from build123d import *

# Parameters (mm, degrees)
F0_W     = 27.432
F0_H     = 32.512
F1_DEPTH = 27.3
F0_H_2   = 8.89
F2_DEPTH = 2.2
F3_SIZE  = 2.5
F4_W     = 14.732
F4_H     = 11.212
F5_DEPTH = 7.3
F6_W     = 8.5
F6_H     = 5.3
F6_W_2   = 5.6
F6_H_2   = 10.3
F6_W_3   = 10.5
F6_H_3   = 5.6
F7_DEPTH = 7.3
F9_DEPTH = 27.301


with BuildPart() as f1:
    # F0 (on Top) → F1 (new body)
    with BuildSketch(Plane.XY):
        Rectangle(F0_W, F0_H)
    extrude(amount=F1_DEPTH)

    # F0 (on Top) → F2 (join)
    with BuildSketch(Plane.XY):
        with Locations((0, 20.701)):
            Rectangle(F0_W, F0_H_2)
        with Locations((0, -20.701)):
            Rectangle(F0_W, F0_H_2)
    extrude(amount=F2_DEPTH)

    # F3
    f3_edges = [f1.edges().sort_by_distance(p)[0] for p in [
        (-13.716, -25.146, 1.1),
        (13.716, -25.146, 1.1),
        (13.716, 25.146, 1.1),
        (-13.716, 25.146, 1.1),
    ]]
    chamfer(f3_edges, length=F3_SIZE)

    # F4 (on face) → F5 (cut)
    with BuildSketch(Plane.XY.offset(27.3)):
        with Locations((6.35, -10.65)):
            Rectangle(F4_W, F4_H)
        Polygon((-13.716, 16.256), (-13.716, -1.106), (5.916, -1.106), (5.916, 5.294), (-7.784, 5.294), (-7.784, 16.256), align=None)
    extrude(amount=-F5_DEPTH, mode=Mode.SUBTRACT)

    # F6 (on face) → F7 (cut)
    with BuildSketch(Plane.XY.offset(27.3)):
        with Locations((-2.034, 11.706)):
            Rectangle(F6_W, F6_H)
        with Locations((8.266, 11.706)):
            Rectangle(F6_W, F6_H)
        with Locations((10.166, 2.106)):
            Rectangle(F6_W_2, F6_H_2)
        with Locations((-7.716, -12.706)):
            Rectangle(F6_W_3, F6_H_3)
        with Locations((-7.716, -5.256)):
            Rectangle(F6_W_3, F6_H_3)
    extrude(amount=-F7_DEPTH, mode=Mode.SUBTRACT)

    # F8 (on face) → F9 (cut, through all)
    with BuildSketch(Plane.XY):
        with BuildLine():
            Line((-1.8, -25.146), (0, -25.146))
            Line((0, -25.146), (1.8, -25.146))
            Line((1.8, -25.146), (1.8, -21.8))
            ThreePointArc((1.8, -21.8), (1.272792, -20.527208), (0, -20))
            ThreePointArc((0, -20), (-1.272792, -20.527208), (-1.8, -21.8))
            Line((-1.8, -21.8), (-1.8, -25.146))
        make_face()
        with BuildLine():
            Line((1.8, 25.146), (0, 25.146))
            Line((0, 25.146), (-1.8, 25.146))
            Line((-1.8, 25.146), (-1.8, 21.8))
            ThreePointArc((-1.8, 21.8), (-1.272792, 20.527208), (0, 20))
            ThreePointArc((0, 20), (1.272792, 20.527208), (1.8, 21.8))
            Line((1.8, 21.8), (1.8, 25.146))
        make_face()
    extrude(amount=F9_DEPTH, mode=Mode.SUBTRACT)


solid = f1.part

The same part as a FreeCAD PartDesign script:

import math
import FreeCAD as App
import Part
import Sketcher

V = App.Vector


def edges_at(feature, points):
    """Names of the edges that pass closest to the given points."""
    edges = feature.Shape.Edges
    near = lambda p: min(range(len(edges)), key=lambda i: edges[i].distToShape(Part.Vertex(*p))[0])
    return sorted({f"Edge{near(p) + 1}" for p in points})

doc = App.newDocument("Part")
body = doc.addObject("PartDesign::Body", "Body")

sketch1 = doc.addObject("Sketcher::SketchObject", "Sketch")
body.addObject(sketch1)
sketch1.AttachmentSupport = (doc.XY_Plane, [""])
sketch1.MapMode = "FlatFace"
sketch1.addGeometry(Part.LineSegment(V(-14, 16, 0), V(-14, -16, 0)), False)
sketch1.addGeometry(Part.LineSegment(V(-14, -16, 0), V(14, -16, 0)), False)
sketch1.addGeometry(Part.LineSegment(V(14, -16, 0), V(14, 16, 0)), False)
sketch1.addGeometry(Part.LineSegment(V(14, 16, 0), V(-14, 16, 0)), False)
sketch1.addConstraint(Sketcher.Constraint("Coincident", 0, 2, 1, 1))
sketch1.addConstraint(Sketcher.Constraint("Coincident", 1, 2, 2, 1))
sketch1.addConstraint(Sketcher.Constraint("Coincident", 2, 2, 3, 1))
sketch1.addConstraint(Sketcher.Constraint("Coincident", 3, 2, 0, 1))
sketch1.addConstraint(Sketcher.Constraint("Vertical", 0))
sketch1.addConstraint(Sketcher.Constraint("Horizontal", 1))
sketch1.addConstraint(Sketcher.Constraint("Vertical", 2))
sketch1.addConstraint(Sketcher.Constraint("Horizontal", 3))
sketch1.addConstraint(Sketcher.Constraint("Symmetric", 0, 2, 2, 2, -1, 1))
sketch1.addConstraint(Sketcher.Constraint("DistanceX", 1, 1, 1, 2, 27.432))
sketch1.addConstraint(Sketcher.Constraint("DistanceY", 0, 2, 0, 1, 32.512))
pad1 = doc.addObject("PartDesign::Pad", "Pad")
body.addObject(pad1)
pad1.Profile = sketch1
pad1.Length = 27.3

sketch2 = doc.addObject("Sketcher::SketchObject", "Sketch001")
body.addObject(sketch2)
sketch2.AttachmentSupport = (doc.XY_Plane, [""])
sketch2.MapMode = "FlatFace"
sketch2.addGeometry(Part.LineSegment(V(-14, 25, 0), V(-14, 16, 0)), False)
sketch2.addGeometry(Part.LineSegment(V(-14, 16, 0), V(14, 16, 0)), False)
sketch2.addGeometry(Part.LineSegment(V(14, 16, 0), V(14, 25, 0)), False)
sketch2.addGeometry(Part.LineSegment(V(14, 25, 0), V(-14, 25, 0)), False)
sketch2.addGeometry(Part.LineSegment(V(-14, -16, 0), V(-14, -25, 0)), False)
sketch2.addGeometry(Part.LineSegment(V(-14, -25, 0), V(14, -25, 0)), False)
sketch2.addGeometry(Part.LineSegment(V(14, -25, 0), V(14, -16, 0)), False)
sketch2.addGeometry(Part.LineSegment(V(14, -16, 0), V(-14, -16, 0)), False)
sketch2.addConstraint(Sketcher.Constraint("Coincident", 0, 2, 1, 1))
sketch2.addConstraint(Sketcher.Constraint("Coincident", 1, 2, 2, 1))
sketch2.addConstraint(Sketcher.Constraint("Coincident", 2, 2, 3, 1))
sketch2.addConstraint(Sketcher.Constraint("Coincident", 3, 2, 0, 1))
sketch2.addConstraint(Sketcher.Constraint("Coincident", 4, 2, 5, 1))
sketch2.addConstraint(Sketcher.Constraint("Coincident", 5, 2, 6, 1))
sketch2.addConstraint(Sketcher.Constraint("Coincident", 6, 2, 7, 1))
sketch2.addConstraint(Sketcher.Constraint("Coincident", 7, 2, 4, 1))
sketch2.addConstraint(Sketcher.Constraint("Vertical", 0))
sketch2.addConstraint(Sketcher.Constraint("Horizontal", 1))
sketch2.addConstraint(Sketcher.Constraint("Vertical", 2))
sketch2.addConstraint(Sketcher.Constraint("Horizontal", 3))
sketch2.addConstraint(Sketcher.Constraint("Vertical", 4))
sketch2.addConstraint(Sketcher.Constraint("Horizontal", 5))
sketch2.addConstraint(Sketcher.Constraint("Vertical", 6))
sketch2.addConstraint(Sketcher.Constraint("Horizontal", 7))
sketch2.addConstraint(Sketcher.Constraint("Symmetric", 2, 2, 4, 2, -1, 1))
sketch2.addConstraint(Sketcher.Constraint("Symmetric", 0, 2, 6, 2, -1, 1))
sketch2.addConstraint(Sketcher.Constraint("Vertical", 3, 2, 4, 2))
sketch2.addConstraint(Sketcher.Constraint("DistanceY", 0, 2, 0, 1, 8.89))
sketch2.addConstraint(Sketcher.Constraint("DistanceX", 1, 1, 1, 2, 27.432))
sketch2.addConstraint(Sketcher.Constraint("DistanceY", -1, 1, 0, 2, 16.256))
pad2 = doc.addObject("PartDesign::Pad", "Pad001")
body.addObject(pad2)
pad2.Profile = sketch2
pad2.Length = 2.2
doc.recompute()

chamfer = doc.addObject("PartDesign::Chamfer", "Chamfer")
body.addObject(chamfer)
chamfer.Base = (pad2, edges_at(pad2, [
    (-13.716, -25.146, 1.1),
    (13.716, -25.146, 1.1),
    (13.716, 25.146, 1.1),
    (-13.716, 25.146, 1.1),
]))
chamfer.Size = 2.5

sketch3 = doc.addObject("Sketcher::SketchObject", "Sketch002")
body.addObject(sketch3)
sketch3.AttachmentSupport = (doc.XY_Plane, [""])
sketch3.MapMode = "FlatFace"
sketch3.AttachmentOffset = App.Placement(V(0, 0, 27.3), App.Rotation())
sketch3.addGeometry(Part.LineSegment(V(-1, -5, 0), V(-1, -16, 0)), False)
sketch3.addGeometry(Part.LineSegment(V(-1, -16, 0), V(14, -16, 0)), False)
sketch3.addGeometry(Part.LineSegment(V(14, -16, 0), V(14, -5, 0)), False)
sketch3.addGeometry(Part.LineSegment(V(14, -5, 0), V(-1, -5, 0)), False)
sketch3.addGeometry(Part.LineSegment(V(-14, 16, 0), V(-14, -1, 0)), False)
sketch3.addGeometry(Part.LineSegment(V(-14, -1, 0), V(6, -1, 0)), False)
sketch3.addGeometry(Part.LineSegment(V(6, -1, 0), V(6, 5, 0)), False)
sketch3.addGeometry(Part.LineSegment(V(6, 5, 0), V(-8, 5, 0)), False)
sketch3.addGeometry(Part.LineSegment(V(-8, 5, 0), V(-8, 16, 0)), False)
sketch3.addGeometry(Part.LineSegment(V(-8, 16, 0), V(-14, 16, 0)), False)
sketch3.addConstraint(Sketcher.Constraint("Coincident", 0, 2, 1, 1))
sketch3.addConstraint(Sketcher.Constraint("Coincident", 1, 2, 2, 1))
sketch3.addConstraint(Sketcher.Constraint("Coincident", 2, 2, 3, 1))
sketch3.addConstraint(Sketcher.Constraint("Coincident", 3, 2, 0, 1))
sketch3.addConstraint(Sketcher.Constraint("Coincident", 4, 2, 5, 1))
sketch3.addConstraint(Sketcher.Constraint("Coincident", 5, 2, 6, 1))
sketch3.addConstraint(Sketcher.Constraint("Coincident", 6, 2, 7, 1))
sketch3.addConstraint(Sketcher.Constraint("Coincident", 7, 2, 8, 1))
sketch3.addConstraint(Sketcher.Constraint("Coincident", 8, 2, 9, 1))
sketch3.addConstraint(Sketcher.Constraint("Coincident", 9, 2, 4, 1))
sketch3.addConstraint(Sketcher.Constraint("Vertical", 0))
sketch3.addConstraint(Sketcher.Constraint("Horizontal", 1))
sketch3.addConstraint(Sketcher.Constraint("Vertical", 2))
sketch3.addConstraint(Sketcher.Constraint("Horizontal", 3))
sketch3.addConstraint(Sketcher.Constraint("Vertical", 4))
sketch3.addConstraint(Sketcher.Constraint("Horizontal", 5))
sketch3.addConstraint(Sketcher.Constraint("Vertical", 6))
sketch3.addConstraint(Sketcher.Constraint("Horizontal", 7))
sketch3.addConstraint(Sketcher.Constraint("Vertical", 8))
sketch3.addConstraint(Sketcher.Constraint("Horizontal", 9))
sketch3.addConstraint(Sketcher.Constraint("Symmetric", 1, 2, 9, 2, -1, 1))
sketch3.addConstraint(Sketcher.Constraint("DistanceX", 7, 2, 7, 1, 13.7))
sketch3.addConstraint(Sketcher.Constraint("DistanceY", 6, 1, 6, 2, 6.4))
sketch3.addConstraint(Sketcher.Constraint("DistanceX", 4, 2, 3, 2, 12.7))
sketch3.addConstraint(Sketcher.Constraint("DistanceX", 5, 2, 2, 2, 7.8))
sketch3.addConstraint(Sketcher.Constraint("DistanceY", 3, 2, 8, 2, 21.3))
sketch3.addConstraint(Sketcher.Constraint("DistanceX", 1, 1, 1, 2, 14.732))
sketch3.addConstraint(Sketcher.Constraint("DistanceY", 0, 2, 0, 1, 11.212))
sketch3.addConstraint(Sketcher.Constraint("DistanceY", 4, 2, 4, 1, 17.362))
pocket1 = doc.addObject("PartDesign::Pocket", "Pocket")
body.addObject(pocket1)
pocket1.Profile = sketch3
pocket1.Length = 7.3

sketch4 = doc.addObject("Sketcher::SketchObject", "Sketch003")
body.addObject(sketch4)
sketch4.AttachmentSupport = (doc.XY_Plane, [""])
sketch4.MapMode = "FlatFace"
sketch4.AttachmentOffset = App.Placement(V(0, 0, 27.3), App.Rotation())
sketch4.addGeometry(Part.LineSegment(V(-6, 14, 0), V(-6, 9, 0)), False)
sketch4.addGeometry(Part.LineSegment(V(-6, 9, 0), V(2, 9, 0)), False)
sketch4.addGeometry(Part.LineSegment(V(2, 9, 0), V(2, 14, 0)), False)
sketch4.addGeometry(Part.LineSegment(V(2, 14, 0), V(-6, 14, 0)), False)
sketch4.addGeometry(Part.LineSegment(V(4, 14, 0), V(4, 9, 0)), False)
sketch4.addGeometry(Part.LineSegment(V(4, 9, 0), V(13, 9, 0)), False)
sketch4.addGeometry(Part.LineSegment(V(13, 9, 0), V(13, 14, 0)), False)
sketch4.addGeometry(Part.LineSegment(V(13, 14, 0), V(4, 14, 0)), False)
sketch4.addGeometry(Part.LineSegment(V(7, 7, 0), V(7, -3, 0)), False)
sketch4.addGeometry(Part.LineSegment(V(7, -3, 0), V(13, -3, 0)), False)
sketch4.addGeometry(Part.LineSegment(V(13, -3, 0), V(13, 7, 0)), False)
sketch4.addGeometry(Part.LineSegment(V(13, 7, 0), V(7, 7, 0)), False)
sketch4.addGeometry(Part.LineSegment(V(-13, -10, 0), V(-13, -16, 0)), False)
sketch4.addGeometry(Part.LineSegment(V(-13, -16, 0), V(-2, -16, 0)), False)
sketch4.addGeometry(Part.LineSegment(V(-2, -16, 0), V(-2, -10, 0)), False)
sketch4.addGeometry(Part.LineSegment(V(-2, -10, 0), V(-13, -10, 0)), False)
sketch4.addGeometry(Part.LineSegment(V(-13, -2, 0), V(-13, -8, 0)), False)
sketch4.addGeometry(Part.LineSegment(V(-13, -8, 0), V(-2, -8, 0)), False)
sketch4.addGeometry(Part.LineSegment(V(-2, -8, 0), V(-2, -2, 0)), False)
sketch4.addGeometry(Part.LineSegment(V(-2, -2, 0), V(-13, -2, 0)), False)
sketch4.addConstraint(Sketcher.Constraint("Coincident", 0, 2, 1, 1))
sketch4.addConstraint(Sketcher.Constraint("Coincident", 1, 2, 2, 1))
sketch4.addConstraint(Sketcher.Constraint("Coincident", 2, 2, 3, 1))
sketch4.addConstraint(Sketcher.Constraint("Coincident", 3, 2, 0, 1))
sketch4.addConstraint(Sketcher.Constraint("Coincident", 4, 2, 5, 1))
sketch4.addConstraint(Sketcher.Constraint("Coincident", 5, 2, 6, 1))
sketch4.addConstraint(Sketcher.Constraint("Coincident", 6, 2, 7, 1))
sketch4.addConstraint(Sketcher.Constraint("Coincident", 7, 2, 4, 1))
sketch4.addConstraint(Sketcher.Constraint("Coincident", 8, 2, 9, 1))
sketch4.addConstraint(Sketcher.Constraint("Coincident", 9, 2, 10, 1))
sketch4.addConstraint(Sketcher.Constraint("Coincident", 10, 2, 11, 1))
sketch4.addConstraint(Sketcher.Constraint("Coincident", 11, 2, 8, 1))
sketch4.addConstraint(Sketcher.Constraint("Coincident", 12, 2, 13, 1))
sketch4.addConstraint(Sketcher.Constraint("Coincident", 13, 2, 14, 1))
sketch4.addConstraint(Sketcher.Constraint("Coincident", 14, 2, 15, 1))
sketch4.addConstraint(Sketcher.Constraint("Coincident", 15, 2, 12, 1))
sketch4.addConstraint(Sketcher.Constraint("Coincident", 16, 2, 17, 1))
sketch4.addConstraint(Sketcher.Constraint("Coincident", 17, 2, 18, 1))
sketch4.addConstraint(Sketcher.Constraint("Coincident", 18, 2, 19, 1))
sketch4.addConstraint(Sketcher.Constraint("Coincident", 19, 2, 16, 1))
sketch4.addConstraint(Sketcher.Constraint("Vertical", 0))
sketch4.addConstraint(Sketcher.Constraint("Horizontal", 1))
sketch4.addConstraint(Sketcher.Constraint("Vertical", 2))
sketch4.addConstraint(Sketcher.Constraint("Horizontal", 3))
sketch4.addConstraint(Sketcher.Constraint("Vertical", 4))
sketch4.addConstraint(Sketcher.Constraint("Horizontal", 5))
sketch4.addConstraint(Sketcher.Constraint("Vertical", 6))
sketch4.addConstraint(Sketcher.Constraint("Horizontal", 7))
sketch4.addConstraint(Sketcher.Constraint("Vertical", 8))
sketch4.addConstraint(Sketcher.Constraint("Horizontal", 9))
sketch4.addConstraint(Sketcher.Constraint("Vertical", 10))
sketch4.addConstraint(Sketcher.Constraint("Horizontal", 11))
sketch4.addConstraint(Sketcher.Constraint("Vertical", 12))
sketch4.addConstraint(Sketcher.Constraint("Horizontal", 13))
sketch4.addConstraint(Sketcher.Constraint("Vertical", 14))
sketch4.addConstraint(Sketcher.Constraint("Horizontal", 15))
sketch4.addConstraint(Sketcher.Constraint("Vertical", 16))
sketch4.addConstraint(Sketcher.Constraint("Horizontal", 17))
sketch4.addConstraint(Sketcher.Constraint("Vertical", 18))
sketch4.addConstraint(Sketcher.Constraint("Horizontal", 19))
sketch4.addConstraint(Sketcher.Constraint("Horizontal", 1, 2, 4, 2))
sketch4.addConstraint(Sketcher.Constraint("Horizontal", 3, 2, 6, 2))
sketch4.addConstraint(Sketcher.Constraint("Vertical", 15, 2, 16, 2))
sketch4.addConstraint(Sketcher.Constraint("Vertical", 14, 2, 17, 2))
sketch4.addConstraint(Sketcher.Constraint("Equal", 3, 5))
sketch4.addConstraint(Sketcher.Constraint("Equal", 11, 12))
sketch4.addConstraint(Sketcher.Constraint("Equal", 14, 16))
sketch4.addConstraint(Sketcher.Constraint("DistanceX", 1, 1, 1, 2, 8.5))
sketch4.addConstraint(Sketcher.Constraint("DistanceX", 9, 1, 9, 2, 5.6))
sketch4.addConstraint(Sketcher.Constraint("DistanceX", 13, 1, 13, 2, 10.5))
sketch4.addConstraint(Sketcher.Constraint("DistanceY", 0, 2, 0, 1, 5.3))
sketch4.addConstraint(Sketcher.Constraint("DistanceY", 8, 2, 8, 1, 10.3))
sketch4.addConstraint(Sketcher.Constraint("DistanceX", 1, 2, 4, 2, 1.8))
sketch4.addConstraint(Sketcher.Constraint("DistanceY", 8, 2, 4, 2, 12.1))
sketch4.addConstraint(Sketcher.Constraint("DistanceX", 4, 2, 8, 2, 3.35))
sketch4.addConstraint(Sketcher.Constraint("DistanceY", 15, 2, 16, 2, 1.85))
sketch4.addConstraint(Sketcher.Constraint("DistanceX", 0, 2, -1, 1, 6.284))
sketch4.addConstraint(Sketcher.Constraint("DistanceY", -1, 1, 0, 2, 9.056))
sketch4.addConstraint(Sketcher.Constraint("DistanceX", 12, 2, -1, 1, 12.966))
sketch4.addConstraint(Sketcher.Constraint("DistanceY", 12, 2, -1, 1, 15.506))
pocket2 = doc.addObject("PartDesign::Pocket", "Pocket001")
body.addObject(pocket2)
pocket2.Profile = sketch4
pocket2.Length = 7.3

sketch5 = doc.addObject("Sketcher::SketchObject", "Sketch004")
body.addObject(sketch5)
sketch5.AttachmentSupport = (doc.XY_Plane, [""])
sketch5.MapMode = "FlatFace"
sketch5.addGeometry(Part.LineSegment(V(-1.8, -25.1, 0), V(1.8, -25.1, 0)), False)
sketch5.addGeometry(Part.LineSegment(V(1.8, -25.1, 0), V(1.8, -21.8, 0)), False)
sketch5.addGeometry(Part.ArcOfCircle(Part.Circle(V(0, -21.8, 0), V(0, 0, 1), 1.8), math.radians(0), math.radians(90)), False)
sketch5.addGeometry(Part.ArcOfCircle(Part.Circle(V(0, -21.8, 0), V(0, 0, 1), 1.8), math.radians(90), math.radians(180)), False)
sketch5.addGeometry(Part.LineSegment(V(-1.8, -21.8, 0), V(-1.8, -25.1, 0)), False)
sketch5.addGeometry(Part.LineSegment(V(1.8, 25.1, 0), V(-1.8, 25.1, 0)), False)
sketch5.addGeometry(Part.LineSegment(V(-1.8, 25.1, 0), V(-1.8, 21.8, 0)), False)
sketch5.addGeometry(Part.ArcOfCircle(Part.Circle(V(0, 21.8, 0), V(0, 0, 1), 1.8), math.radians(-180), math.radians(-90)), False)
sketch5.addGeometry(Part.ArcOfCircle(Part.Circle(V(0, 21.8, 0), V(0, 0, 1), 1.8), math.radians(-90), math.radians(0)), False)
sketch5.addGeometry(Part.LineSegment(V(1.8, 21.8, 0), V(1.8, 25.1, 0)), False)
sketch5.addConstraint(Sketcher.Constraint("Coincident", 0, 2, 1, 1))
sketch5.addConstraint(Sketcher.Constraint("Tangent", 1, 2, 2, 1))
sketch5.addConstraint(Sketcher.Constraint("Tangent", 2, 2, 3, 1))
sketch5.addConstraint(Sketcher.Constraint("Tangent", 3, 2, 4, 1))
sketch5.addConstraint(Sketcher.Constraint("Coincident", 4, 2, 0, 1))
sketch5.addConstraint(Sketcher.Constraint("Coincident", 5, 2, 6, 1))
sketch5.addConstraint(Sketcher.Constraint("Tangent", 6, 2, 7, 1))
sketch5.addConstraint(Sketcher.Constraint("Tangent", 7, 2, 8, 1))
sketch5.addConstraint(Sketcher.Constraint("Tangent", 8, 2, 9, 1))
sketch5.addConstraint(Sketcher.Constraint("Coincident", 9, 2, 5, 1))
sketch5.addConstraint(Sketcher.Constraint("Horizontal", 0))
sketch5.addConstraint(Sketcher.Constraint("Vertical", 1))
sketch5.addConstraint(Sketcher.Constraint("Vertical", 4))
sketch5.addConstraint(Sketcher.Constraint("Horizontal", 5))
sketch5.addConstraint(Sketcher.Constraint("Vertical", 6))
sketch5.addConstraint(Sketcher.Constraint("Vertical", 9))
sketch5.addConstraint(Sketcher.Constraint("Equal", 2, 3))
sketch5.addConstraint(Sketcher.Constraint("Equal", 3, 7))
sketch5.addConstraint(Sketcher.Constraint("Equal", 7, 8))
sketch5.addConstraint(Sketcher.Constraint("Symmetric", 2, 3, 7, 3, -1, 1))
sketch5.addConstraint(Sketcher.Constraint("Symmetric", 4, 2, 5, 2, -1))
sketch5.addConstraint(Sketcher.Constraint("PointOnObject", 2, 2, -2))
sketch5.addConstraint(Sketcher.Constraint("PointOnObject", 7, 2, -2))
sketch5.addConstraint(Sketcher.Constraint("Radius", 2, 1.800001))
sketch5.addConstraint(Sketcher.Constraint("DistanceY", 2, 2, -1, 1, 20.0))
sketch5.addConstraint(Sketcher.Constraint("DistanceY", 1, 1, 1, 2, 3.346))
pocket3 = doc.addObject("PartDesign::Pocket", "Pocket002")
body.addObject(pocket3)
pocket3.Profile = sketch5
pocket3.Type = "ThroughAll"
pocket3.Reversed = True

doc.recompute()
